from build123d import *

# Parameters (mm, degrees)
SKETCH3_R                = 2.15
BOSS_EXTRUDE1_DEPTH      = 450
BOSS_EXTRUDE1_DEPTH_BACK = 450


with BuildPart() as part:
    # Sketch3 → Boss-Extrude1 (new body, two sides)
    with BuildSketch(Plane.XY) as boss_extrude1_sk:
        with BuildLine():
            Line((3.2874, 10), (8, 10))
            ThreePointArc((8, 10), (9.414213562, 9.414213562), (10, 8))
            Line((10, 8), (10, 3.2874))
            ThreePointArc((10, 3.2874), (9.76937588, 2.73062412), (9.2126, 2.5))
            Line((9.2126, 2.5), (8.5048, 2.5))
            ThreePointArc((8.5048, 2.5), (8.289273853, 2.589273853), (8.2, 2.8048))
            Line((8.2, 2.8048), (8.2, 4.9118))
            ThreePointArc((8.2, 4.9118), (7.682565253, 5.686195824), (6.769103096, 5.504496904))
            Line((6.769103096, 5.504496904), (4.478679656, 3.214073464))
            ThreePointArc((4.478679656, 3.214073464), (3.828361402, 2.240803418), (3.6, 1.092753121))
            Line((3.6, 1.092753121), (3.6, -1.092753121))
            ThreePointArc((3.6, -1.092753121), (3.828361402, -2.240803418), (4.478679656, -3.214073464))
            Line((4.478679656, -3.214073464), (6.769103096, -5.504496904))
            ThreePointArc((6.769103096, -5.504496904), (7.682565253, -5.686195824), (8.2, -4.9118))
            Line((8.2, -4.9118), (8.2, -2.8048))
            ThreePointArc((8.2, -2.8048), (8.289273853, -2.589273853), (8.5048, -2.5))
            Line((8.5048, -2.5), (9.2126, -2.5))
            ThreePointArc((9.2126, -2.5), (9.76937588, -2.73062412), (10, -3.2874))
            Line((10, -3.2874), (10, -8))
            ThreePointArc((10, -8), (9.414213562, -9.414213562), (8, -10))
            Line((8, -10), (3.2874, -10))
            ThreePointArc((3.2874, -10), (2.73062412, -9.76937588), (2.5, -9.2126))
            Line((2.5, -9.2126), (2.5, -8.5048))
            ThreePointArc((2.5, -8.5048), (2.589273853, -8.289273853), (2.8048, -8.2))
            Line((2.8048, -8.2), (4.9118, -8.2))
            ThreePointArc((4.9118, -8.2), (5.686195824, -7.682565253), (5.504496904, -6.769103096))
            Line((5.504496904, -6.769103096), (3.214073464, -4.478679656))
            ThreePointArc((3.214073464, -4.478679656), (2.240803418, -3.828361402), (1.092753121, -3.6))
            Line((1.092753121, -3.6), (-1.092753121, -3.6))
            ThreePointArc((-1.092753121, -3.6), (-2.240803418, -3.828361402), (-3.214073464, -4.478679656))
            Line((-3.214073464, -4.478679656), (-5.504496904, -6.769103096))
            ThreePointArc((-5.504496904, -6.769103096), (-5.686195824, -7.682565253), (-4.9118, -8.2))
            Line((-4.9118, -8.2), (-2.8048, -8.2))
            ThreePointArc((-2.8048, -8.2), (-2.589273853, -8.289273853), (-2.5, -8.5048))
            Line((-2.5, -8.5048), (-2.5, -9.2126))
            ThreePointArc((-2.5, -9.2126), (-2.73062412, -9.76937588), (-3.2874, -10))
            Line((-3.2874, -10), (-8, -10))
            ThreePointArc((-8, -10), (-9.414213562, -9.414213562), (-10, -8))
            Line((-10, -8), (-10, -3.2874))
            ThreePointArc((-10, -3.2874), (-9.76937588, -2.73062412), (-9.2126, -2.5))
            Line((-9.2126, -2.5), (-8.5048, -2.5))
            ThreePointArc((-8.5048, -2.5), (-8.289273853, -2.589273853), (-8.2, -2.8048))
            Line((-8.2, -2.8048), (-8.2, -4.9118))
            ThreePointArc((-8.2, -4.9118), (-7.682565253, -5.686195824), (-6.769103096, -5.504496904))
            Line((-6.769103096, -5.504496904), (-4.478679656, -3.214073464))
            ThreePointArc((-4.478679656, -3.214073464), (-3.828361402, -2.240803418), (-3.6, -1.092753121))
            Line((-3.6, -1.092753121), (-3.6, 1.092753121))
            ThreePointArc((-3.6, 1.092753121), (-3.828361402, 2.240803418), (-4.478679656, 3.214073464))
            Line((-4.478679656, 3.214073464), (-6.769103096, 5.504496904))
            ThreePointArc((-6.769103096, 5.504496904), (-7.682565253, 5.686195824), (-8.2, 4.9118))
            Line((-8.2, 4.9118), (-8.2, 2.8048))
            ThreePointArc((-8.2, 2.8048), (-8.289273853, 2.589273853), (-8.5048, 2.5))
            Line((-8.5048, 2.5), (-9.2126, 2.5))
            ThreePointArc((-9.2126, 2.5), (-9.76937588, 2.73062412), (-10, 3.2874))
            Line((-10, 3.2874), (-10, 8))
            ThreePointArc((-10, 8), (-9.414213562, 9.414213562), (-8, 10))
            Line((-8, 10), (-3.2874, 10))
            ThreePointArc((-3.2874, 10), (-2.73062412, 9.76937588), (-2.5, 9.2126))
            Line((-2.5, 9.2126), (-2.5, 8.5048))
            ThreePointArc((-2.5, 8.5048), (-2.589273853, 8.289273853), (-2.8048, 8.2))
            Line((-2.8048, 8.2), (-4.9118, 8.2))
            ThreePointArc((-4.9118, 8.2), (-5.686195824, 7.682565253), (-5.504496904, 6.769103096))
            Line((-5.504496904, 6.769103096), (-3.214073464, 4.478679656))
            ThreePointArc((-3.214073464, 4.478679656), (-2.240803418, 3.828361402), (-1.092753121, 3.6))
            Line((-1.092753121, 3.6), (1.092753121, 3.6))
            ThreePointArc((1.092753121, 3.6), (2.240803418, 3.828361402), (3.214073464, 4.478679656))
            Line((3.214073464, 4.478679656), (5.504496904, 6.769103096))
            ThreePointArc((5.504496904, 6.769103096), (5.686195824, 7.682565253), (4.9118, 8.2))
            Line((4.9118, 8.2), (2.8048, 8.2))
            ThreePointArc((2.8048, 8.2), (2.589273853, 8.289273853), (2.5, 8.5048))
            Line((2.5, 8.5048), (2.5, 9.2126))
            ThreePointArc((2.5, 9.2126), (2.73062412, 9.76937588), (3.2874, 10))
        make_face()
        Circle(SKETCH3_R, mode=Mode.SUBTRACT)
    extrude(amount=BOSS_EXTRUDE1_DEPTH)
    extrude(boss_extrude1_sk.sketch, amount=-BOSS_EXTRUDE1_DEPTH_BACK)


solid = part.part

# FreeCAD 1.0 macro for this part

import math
import FreeCAD as App
import Part
import Sketcher
from FreeCAD import Vector

doc = App.newDocument("Part")
body = doc.addObject("PartDesign::Body", "Body")

sketch1 = body.newObject("Sketcher::SketchObject", "Sketch")
sketch1.AttachmentSupport = (doc.getObject("XY_Plane"), [""])
sketch1.MapMode = "FlatFace"
sketch1.addGeometry([
    Part.LineSegment(Vector(8, 10, 0), Vector(3.29, 10, 0)),
    Part.ArcOfCircle(Part.Circle(Vector(3.29, 9.21, 0), Vector(0, 0, 1), 0.79), math.radians(90), math.radians(180)),
    Part.LineSegment(Vector(2.5, 9.21, 0), Vector(2.5, 8.5, 0)),
    Part.ArcOfCircle(Part.Circle(Vector(2.8, 8.5, 0), Vector(0, 0, 1), 0.3), math.radians(180), math.radians(270)),
    Part.LineSegment(Vector(2.8, 8.2, 0), Vector(4.91, 8.2, 0)),
    Part.ArcOfCircle(Part.Circle(Vector(4.91, 7.36, 0), Vector(0, 0, 1), 0.84), math.radians(-45), math.radians(90)),
    Part.LineSegment(Vector(5.5, 6.77, 0), Vector(3.21, 4.48, 0)),
    Part.ArcOfCircle(Part.Circle(Vector(1.09, 6.6, 0), Vector(0, 0, 1), 3), math.radians(-90), math.radians(-45)),
    Part.LineSegment(Vector(1.09, 3.6, 0), Vector(-1.09, 3.6, 0)),
    Part.ArcOfCircle(Part.Circle(Vector(-1.09, 6.6, 0), Vector(0, 0, 1), 3), math.radians(-135), math.radians(-90)),
    Part.LineSegment(Vector(-3.21, 4.48, 0), Vector(-5.5, 6.77, 0)),
    Part.ArcOfCircle(Part.Circle(Vector(-4.91, 7.36, 0), Vector(0, 0, 1), 0.84), math.radians(90), math.radians(225)),
    Part.LineSegment(Vector(-4.91, 8.2, 0), Vector(-2.8, 8.2, 0)),
    Part.ArcOfCircle(Part.Circle(Vector(-2.8, 8.5, 0), Vector(0, 0, 1), 0.3), math.radians(-90), math.radians(0)),
    Part.LineSegment(Vector(-2.5, 8.5, 0), Vector(-2.5, 9.21, 0)),
    Part.ArcOfCircle(Part.Circle(Vector(-3.29, 9.21, 0), Vector(0, 0, 1), 0.79), math.radians(0), math.radians(90)),
    Part.LineSegment(Vector(-3.29, 10, 0), Vector(-8, 10, 0)),
    Part.ArcOfCircle(Part.Circle(Vector(-8, 8, 0), Vector(0, 0, 1), 2), math.radians(90), math.radians(180)),
    Part.LineSegment(Vector(-10, 8, 0), Vector(-10, 3.29, 0)),
    Part.ArcOfCircle(Part.Circle(Vector(-9.21, 3.29, 0), Vector(0, 0, 1), 0.79), math.radians(180), math.radians(270)),
    Part.LineSegment(Vector(-9.21, 2.5, 0), Vector(-8.5, 2.5, 0)),
    Part.ArcOfCircle(Part.Circle(Vector(-8.5, 2.8, 0), Vector(0, 0, 1), 0.3), math.radians(-90), math.radians(0)),
    Part.LineSegment(Vector(-8.2, 2.8, 0), Vector(-8.2, 4.91, 0)),
    Part.ArcOfCircle(Part.Circle(Vector(-7.36, 4.91, 0), Vector(0, 0, 1), 0.84), math.radians(45), math.radians(180)),
    Part.LineSegment(Vector(-6.77, 5.5, 0), Vector(-4.48, 3.21, 0)),
    Part.ArcOfCircle(Part.Circle(Vector(-6.6, 1.09, 0), Vector(0, 0, 1), 3), math.radians(0), math.radians(45)),
    Part.LineSegment(Vector(-3.6, 1.09, 0), Vector(-3.6, -1.09, 0)),
    Part.ArcOfCircle(Part.Circle(Vector(-6.6, -1.09, 0), Vector(0, 0, 1), 3), math.radians(-45), math.radians(0)),
    Part.LineSegment(Vector(-4.48, -3.21, 0), Vector(-6.77, -5.5, 0)),
    Part.ArcOfCircle(Part.Circle(Vector(-7.36, -4.91, 0), Vector(0, 0, 1), 0.84), math.radians(180), math.radians(315)),
    Part.LineSegment(Vector(-8.2, -4.91, 0), Vector(-8.2, -2.8, 0)),
    Part.ArcOfCircle(Part.Circle(Vector(-8.5, -2.8, 0), Vector(0, 0, 1), 0.3), math.radians(0), math.radians(90)),
    Part.LineSegment(Vector(-8.5, -2.5, 0), Vector(-9.21, -2.5, 0)),
    Part.ArcOfCircle(Part.Circle(Vector(-9.21, -3.29, 0), Vector(0, 0, 1), 0.79), math.radians(90), math.radians(180)),
    Part.LineSegment(Vector(-10, -3.29, 0), Vector(-10, -8, 0)),
    Part.ArcOfCircle(Part.Circle(Vector(-8, -8, 0), Vector(0, 0, 1), 2), math.radians(-180), math.radians(-90)),
    Part.LineSegment(Vector(-8, -10, 0), Vector(-3.29, -10, 0)),
    Part.ArcOfCircle(Part.Circle(Vector(-3.29, -9.21, 0), Vector(0, 0, 1), 0.79), math.radians(-90), math.radians(0)),
    Part.LineSegment(Vector(-2.5, -9.21, 0), Vector(-2.5, -8.5, 0)),
    Part.ArcOfCircle(Part.Circle(Vector(-2.8, -8.5, 0), Vector(0, 0, 1), 0.3), math.radians(0), math.radians(90)),
    Part.LineSegment(Vector(-2.8, -8.2, 0), Vector(-4.91, -8.2, 0)),
    Part.ArcOfCircle(Part.Circle(Vector(-4.91, -7.36, 0), Vector(0, 0, 1), 0.84), math.radians(135), math.radians(270)),
    Part.LineSegment(Vector(-5.5, -6.77, 0), Vector(-3.21, -4.48, 0)),
    Part.ArcOfCircle(Part.Circle(Vector(-1.09, -6.6, 0), Vector(0, 0, 1), 3), math.radians(90), math.radians(135)),
    Part.LineSegment(Vector(-1.09, -3.6, 0), Vector(1.09, -3.6, 0)),
    Part.ArcOfCircle(Part.Circle(Vector(1.09, -6.6, 0), Vector(0, 0, 1), 3), math.radians(45), math.radians(90)),
    Part.LineSegment(Vector(3.21, -4.48, 0), Vector(5.5, -6.77, 0)),
    Part.ArcOfCircle(Part.Circle(Vector(4.91, -7.36, 0), Vector(0, 0, 1), 0.84), math.radians(-90), math.radians(45)),
    Part.LineSegment(Vector(4.91, -8.2, 0), Vector(2.8, -8.2, 0)),
    Part.ArcOfCircle(Part.Circle(Vector(2.8, -8.5, 0), Vector(0, 0, 1), 0.3), math.radians(90), math.radians(180)),
    Part.LineSegment(Vector(2.5, -8.5, 0), Vector(2.5, -9.21, 0)),
    Part.ArcOfCircle(Part.Circle(Vector(3.29, -9.21, 0), Vector(0, 0, 1), 0.79), math.radians(180), math.radians(270)),
    Part.LineSegment(Vector(3.29, -10, 0), Vector(8, -10, 0)),
    Part.ArcOfCircle(Part.Circle(Vector(8, -8, 0), Vector(0, 0, 1), 2), math.radians(-90), math.radians(0)),
    Part.LineSegment(Vector(10, -8, 0), Vector(10, -3.29, 0)),
    Part.ArcOfCircle(Part.Circle(Vector(9.21, -3.29, 0), Vector(0, 0, 1), 0.79), math.radians(0), math.radians(90)),
    Part.LineSegment(Vector(9.21, -2.5, 0), Vector(8.5, -2.5, 0)),
    Part.ArcOfCircle(Part.Circle(Vector(8.5, -2.8, 0), Vector(0, 0, 1), 0.3), math.radians(90), math.radians(180)),
    Part.LineSegment(Vector(8.2, -2.8, 0), Vector(8.2, -4.91, 0)),
    Part.ArcOfCircle(Part.Circle(Vector(7.36, -4.91, 0), Vector(0, 0, 1), 0.84), math.radians(-135), math.radians(0)),
    Part.LineSegment(Vector(6.77, -5.5, 0), Vector(4.48, -3.21, 0)),
    Part.ArcOfCircle(Part.Circle(Vector(6.6, -1.09, 0), Vector(0, 0, 1), 3), math.radians(180), math.radians(225)),
    Part.LineSegment(Vector(3.6, -1.09, 0), Vector(3.6, 1.09, 0)),
    Part.ArcOfCircle(Part.Circle(Vector(6.6, 1.09, 0), Vector(0, 0, 1), 3), math.radians(135), math.radians(180)),
    Part.LineSegment(Vector(4.48, 3.21, 0), Vector(6.77, 5.5, 0)),
    Part.ArcOfCircle(Part.Circle(Vector(7.36, 4.91, 0), Vector(0, 0, 1), 0.84), math.radians(0), math.radians(135)),
    Part.LineSegment(Vector(8.2, 4.91, 0), Vector(8.2, 2.8, 0)),
    Part.ArcOfCircle(Part.Circle(Vector(8.5, 2.8, 0), Vector(0, 0, 1), 0.3), math.radians(180), math.radians(270)),
    Part.LineSegment(Vector(8.5, 2.5, 0), Vector(9.21, 2.5, 0)),
    Part.ArcOfCircle(Part.Circle(Vector(9.21, 3.29, 0), Vector(0, 0, 1), 0.79), math.radians(-90), math.radians(0)),
    Part.LineSegment(Vector(10, 3.29, 0), Vector(10, 8, 0)),
    Part.ArcOfCircle(Part.Circle(Vector(8, 8, 0), Vector(0, 0, 1), 2), math.radians(0), math.radians(90)),
    Part.Circle(Vector(0, 0, 0), Vector(0, 0, 1), 2.15),
], False)
sketch1.addConstraint([
    Sketcher.Constraint("Tangent", 0, 2, 1, 1),
    Sketcher.Constraint("Tangent", 1, 2, 2, 1),
    Sketcher.Constraint("Tangent", 2, 2, 3, 1),
    Sketcher.Constraint("Tangent", 3, 2, 4, 1),
    Sketcher.Constraint("Tangent", 4, 2, 5, 2),
    Sketcher.Constraint("Tangent", 5, 1, 6, 1),
    Sketcher.Constraint("Tangent", 6, 2, 7, 2),
    Sketcher.Constraint("Tangent", 7, 1, 8, 1),
    Sketcher.Constraint("Tangent", 8, 2, 9, 2),
    Sketcher.Constraint("Tangent", 9, 1, 10, 1),
    Sketcher.Constraint("Tangent", 10, 2, 11, 2),
    Sketcher.Constraint("Tangent", 11, 1, 12, 1),
    Sketcher.Constraint("Tangent", 12, 2, 13, 1),
    Sketcher.Constraint("Tangent", 13, 2, 14, 1),
    Sketcher.Constraint("Tangent", 14, 2, 15, 1),
    Sketcher.Constraint("Tangent", 15, 2, 16, 1),
    Sketcher.Constraint("Tangent", 16, 2, 17, 1),
    Sketcher.Constraint("Tangent", 17, 2, 18, 1),
    Sketcher.Constraint("Tangent", 18, 2, 19, 1),
    Sketcher.Constraint("Tangent", 19, 2, 20, 1),
    Sketcher.Constraint("Tangent", 20, 2, 21, 1),
    Sketcher.Constraint("Tangent", 21, 2, 22, 1),
    Sketcher.Constraint("Tangent", 22, 2, 23, 2),
    Sketcher.Constraint("Tangent", 23, 1, 24, 1),
    Sketcher.Constraint("Tangent", 24, 2, 25, 2),
    Sketcher.Constraint("Tangent", 25, 1, 26, 1),
    Sketcher.Constraint("Tangent", 26, 2, 27, 2),
    Sketcher.Constraint("Tangent", 27, 1, 28, 1),
    Sketcher.Constraint("Tangent", 28, 2, 29, 2),
    Sketcher.Constraint("Tangent", 29, 1, 30, 1),
    Sketcher.Constraint("Tangent", 30, 2, 31, 1),
    Sketcher.Constraint("Tangent", 31, 2, 32, 1),
    Sketcher.Constraint("Tangent", 32, 2, 33, 1),
    Sketcher.Constraint("Tangent", 33, 2, 34, 1),
    Sketcher.Constraint("Tangent", 34, 2, 35, 1),
    Sketcher.Constraint("Tangent", 35, 2, 36, 1),
    Sketcher.Constraint("Tangent", 36, 2, 37, 1),
    Sketcher.Constraint("Tangent", 37, 2, 38, 1),
    Sketcher.Constraint("Tangent", 38, 2, 39, 1),
    Sketcher.Constraint("Tangent", 39, 2, 40, 1),
    Sketcher.Constraint("Tangent", 40, 2, 41, 2),
    Sketcher.Constraint("Tangent", 41, 1, 42, 1),
    Sketcher.Constraint("Tangent", 42, 2, 43, 2),
    Sketcher.Constraint("Tangent", 43, 1, 44, 1),
    Sketcher.Constraint("Tangent", 44, 2, 45, 2),
    Sketcher.Constraint("Tangent", 45, 1, 46, 1),
    Sketcher.Constraint("Tangent", 46, 2, 47, 2),
    Sketcher.Constraint("Tangent", 47, 1, 48, 1),
    Sketcher.Constraint("Tangent", 48, 2, 49, 1),
    Sketcher.Constraint("Tangent", 49, 2, 50, 1),
    Sketcher.Constraint("Tangent", 50, 2, 51, 1),
    Sketcher.Constraint("Tangent", 51, 2, 52, 1),
    Sketcher.Constraint("Tangent", 52, 2, 53, 1),
    Sketcher.Constraint("Tangent", 53, 2, 54, 1),
    Sketcher.Constraint("Tangent", 54, 2, 55, 1),
    Sketcher.Constraint("Tangent", 55, 2, 56, 1),
    Sketcher.Constraint("Tangent", 56, 2, 57, 1),
    Sketcher.Constraint("Tangent", 57, 2, 58, 1),
    Sketcher.Constraint("Tangent", 58, 2, 59, 2),
    Sketcher.Constraint("Tangent", 59, 1, 60, 1),
    Sketcher.Constraint("Tangent", 60, 2, 61, 2),
    Sketcher.Constraint("Tangent", 61, 1, 62, 1),
    Sketcher.Constraint("Tangent", 62, 2, 63, 2),
    Sketcher.Constraint("Tangent", 63, 1, 64, 1),
    Sketcher.Constraint("Tangent", 64, 2, 65, 2),
    Sketcher.Constraint("Tangent", 65, 1, 66, 1),
    Sketcher.Constraint("Tangent", 66, 2, 67, 1),
    Sketcher.Constraint("Tangent", 67, 2, 68, 1),
    Sketcher.Constraint("Tangent", 68, 2, 69, 1),
    Sketcher.Constraint("Tangent", 69, 2, 70, 1),
    Sketcher.Constraint("Tangent", 70, 2, 71, 1),
    Sketcher.Constraint("Tangent", 71, 2, 0, 1),
    Sketcher.Constraint("Horizontal", 0),
    Sketcher.Constraint("Vertical", 2),
    Sketcher.Constraint("Horizontal", 4),
    Sketcher.Constraint("Horizontal", 8),
    Sketcher.Constraint("Horizontal", 12),
    Sketcher.Constraint("Vertical", 14),
    Sketcher.Constraint("Horizontal", 16),
    Sketcher.Constraint("Vertical", 18),
    Sketcher.Constraint("Horizontal", 20),
    Sketcher.Constraint("Vertical", 22),
    Sketcher.Constraint("Vertical", 26),
    Sketcher.Constraint("Vertical", 30),
    Sketcher.Constraint("Horizontal", 32),
    Sketcher.Constraint("Vertical", 34),
    Sketcher.Constraint("Horizontal", 36),
    Sketcher.Constraint("Vertical", 38),
    Sketcher.Constraint("Horizontal", 40),
    Sketcher.Constraint("Horizontal", 44),
    Sketcher.Constraint("Horizontal", 48),
    Sketcher.Constraint("Vertical", 50),
    Sketcher.Constraint("Horizontal", 52),
    Sketcher.Constraint("Vertical", 54),
    Sketcher.Constraint("Horizontal", 56),
    Sketcher.Constraint("Vertical", 58),
    Sketcher.Constraint("Vertical", 62),
    Sketcher.Constraint("Vertical", 66),
    Sketcher.Constraint("Horizontal", 68),
    Sketcher.Constraint("Vertical", 70),
    Sketcher.Constraint("Coincident", 72, 3, -1, 1),
    Sketcher.Constraint("Equal", 7, 9),
    Sketcher.Constraint("Equal", 5, 11),
    Sketcher.Constraint("Equal", 3, 13),
    Sketcher.Constraint("Equal", 1, 15),
    Sketcher.Constraint("Equal", 15, 19),
    Sketcher.Constraint("Equal", 13, 21),
    Sketcher.Constraint("Equal", 11, 23),
    Sketcher.Constraint("Equal", 9, 25),
    Sketcher.Constraint("Equal", 25, 27),
    Sketcher.Constraint("Equal", 23, 29),
    Sketcher.Constraint("Equal", 21, 31),
    Sketcher.Constraint("Equal", 19, 33),
    Sketcher.Constraint("Equal", 17, 35),
    Sketcher.Constraint("Equal", 33, 37),
    Sketcher.Constraint("Equal", 31, 39),
    Sketcher.Constraint("Equal", 29, 41),
    Sketcher.Constraint("Equal", 27, 43),
    Sketcher.Constraint("Equal", 43, 45),
    Sketcher.Constraint("Equal", 41, 47),
    Sketcher.Constraint("Equal", 39, 49),
    Sketcher.Constraint("Equal", 37, 51),
    Sketcher.Constraint("Equal", 35, 53),
    Sketcher.Constraint("Equal", 51, 55),
    Sketcher.Constraint("Equal", 49, 57),
    Sketcher.Constraint("Equal", 47, 59),
    Sketcher.Constraint("Equal", 45, 61),
    Sketcher.Constraint("Equal", 61, 63),
    Sketcher.Constraint("Equal", 59, 65),
    Sketcher.Constraint("Equal", 57, 67),
    Sketcher.Constraint("Equal", 55, 69),
    Sketcher.Constraint("Equal", 53, 71),
    Sketcher.Constraint("Symmetric", 1, 3, 37, 3, -1, 1),
    Sketcher.Constraint("Symmetric", 5, 3, 41, 3, -1, 1),
    Sketcher.Constraint("Symmetric", 7, 3, 43, 3, -1, 1),
    Sketcher.Constraint("Symmetric", 11, 3, 47, 3, -1, 1),
    Sketcher.Constraint("Symmetric", 15, 3, 51, 3, -1, 1),
    Sketcher.Constraint("Symmetric", 19, 3, 55, 3, -1, 1),
    Sketcher.Constraint("Symmetric", 23, 3, 59, 3, -1, 1),
    Sketcher.Constraint("Symmetric", 25, 3, 61, 3, -1, 1),
    Sketcher.Constraint("Symmetric", 29, 3, 65, 3, -1, 1),
    Sketcher.Constraint("Symmetric", 33, 3, 69, 3, -1, 1),
    Sketcher.Constraint("Symmetric", 5, 3, 11, 3, -2),
    Sketcher.Constraint("Symmetric", 1, 3, 15, 3, -2),
    Sketcher.Constraint("Symmetric", 33, 3, 55, 3, -2),
    Sketcher.Constraint("Symmetric", 29, 3, 59, 3, -2),
    Sketcher.Constraint("Perpendicular", 6, 10),
    Sketcher.Constraint("Parallel", 10, 24),
    Sketcher.Constraint("Perpendicular", 24, 28),
    Sketcher.Constraint("Perpendicular", 42, 46),
    Sketcher.Constraint("Perpendicular", 60, 64),
    Sketcher.Constraint("Horizontal", 27, 3, 61, 3),
    Sketcher.Constraint("Equal", 68, 2),
    Sketcher.Constraint("Equal", 52, 18),
    Sketcher.Constraint("Equal", 48, 22),
    Sketcher.Constraint("Equal", 44, 26),
    Sketcher.Constraint("Equal", 10, 24),
    Sketcher.Constraint("Radius", 7, 3.0),
    Sketcher.Constraint("Radius", 17, 2.0),
    Sketcher.Constraint("Diameter", 72, 4.3),
    Sketcher.Constraint("DistanceX", 17, 3, -1, 1, 8.0),
    Sketcher.Constraint("DistanceY", -1, 1, 7, 3, 6.6),
    Sketcher.Constraint("DistanceX", -1, 1, 1, 2, 2.5),
    Sketcher.Constraint("DistanceY", -1, 1, 3, 2, 8.2),
    Sketcher.Constraint("Radius", 1, 0.7874),
    Sketcher.Constraint("Radius", 3, 0.3048),
    Sketcher.Constraint("Radius", 5, 0.8382),
    Sketcher.Constraint("DistanceX", 4, 1, 4, 2, 2.107),
])
pad1 = body.newObject("PartDesign::Pad", "Pad")
pad1.Profile = sketch1
pad1.Type = "TwoLengths"
pad1.Length = 450
pad1.Length2 = 450

doc.recompute()
